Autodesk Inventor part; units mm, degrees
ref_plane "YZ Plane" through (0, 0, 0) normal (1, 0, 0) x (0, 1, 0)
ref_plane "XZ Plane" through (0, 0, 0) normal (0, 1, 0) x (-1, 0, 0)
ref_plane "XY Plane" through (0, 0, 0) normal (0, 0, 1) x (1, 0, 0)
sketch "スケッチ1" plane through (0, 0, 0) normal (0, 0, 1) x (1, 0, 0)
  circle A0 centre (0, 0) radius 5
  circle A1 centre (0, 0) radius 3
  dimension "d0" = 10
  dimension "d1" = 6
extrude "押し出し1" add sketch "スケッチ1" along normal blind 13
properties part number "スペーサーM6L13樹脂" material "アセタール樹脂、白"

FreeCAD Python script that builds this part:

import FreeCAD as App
import Part
import Sketcher
Q = App.Units.Quantity

doc = App.newDocument("Part")
body = doc.addObject("PartDesign::Body", "Body")

sketch1 = body.newObject("Sketcher::SketchObject", "Sketch")
sketch1.AttachmentSupport = (doc.getObject("XY_Plane"), [""])
sketch1.MapMode = "FlatFace"
sketch1.addGeometry([
    Part.Circle(App.Vector(0, 0, 0), App.Vector(0, 0, 1), 5),
    Part.Circle(App.Vector(0, 0, 0), App.Vector(0, 0, 1), 3),
], False)
sketch1.addConstraint([
    Sketcher.Constraint("Coincident", 0, 3, -1, 1),
    Sketcher.Constraint("Coincident", 1, 3, -1, 1),
    Sketcher.Constraint("Diameter", 0, Q("10 mm")),
    Sketcher.Constraint("Diameter", 1, Q("6 mm")),
])
pad1 = body.newObject("PartDesign::Pad", "Pad")
pad1.Profile = sketch1
pad1.Length = 13

doc.recompute()
